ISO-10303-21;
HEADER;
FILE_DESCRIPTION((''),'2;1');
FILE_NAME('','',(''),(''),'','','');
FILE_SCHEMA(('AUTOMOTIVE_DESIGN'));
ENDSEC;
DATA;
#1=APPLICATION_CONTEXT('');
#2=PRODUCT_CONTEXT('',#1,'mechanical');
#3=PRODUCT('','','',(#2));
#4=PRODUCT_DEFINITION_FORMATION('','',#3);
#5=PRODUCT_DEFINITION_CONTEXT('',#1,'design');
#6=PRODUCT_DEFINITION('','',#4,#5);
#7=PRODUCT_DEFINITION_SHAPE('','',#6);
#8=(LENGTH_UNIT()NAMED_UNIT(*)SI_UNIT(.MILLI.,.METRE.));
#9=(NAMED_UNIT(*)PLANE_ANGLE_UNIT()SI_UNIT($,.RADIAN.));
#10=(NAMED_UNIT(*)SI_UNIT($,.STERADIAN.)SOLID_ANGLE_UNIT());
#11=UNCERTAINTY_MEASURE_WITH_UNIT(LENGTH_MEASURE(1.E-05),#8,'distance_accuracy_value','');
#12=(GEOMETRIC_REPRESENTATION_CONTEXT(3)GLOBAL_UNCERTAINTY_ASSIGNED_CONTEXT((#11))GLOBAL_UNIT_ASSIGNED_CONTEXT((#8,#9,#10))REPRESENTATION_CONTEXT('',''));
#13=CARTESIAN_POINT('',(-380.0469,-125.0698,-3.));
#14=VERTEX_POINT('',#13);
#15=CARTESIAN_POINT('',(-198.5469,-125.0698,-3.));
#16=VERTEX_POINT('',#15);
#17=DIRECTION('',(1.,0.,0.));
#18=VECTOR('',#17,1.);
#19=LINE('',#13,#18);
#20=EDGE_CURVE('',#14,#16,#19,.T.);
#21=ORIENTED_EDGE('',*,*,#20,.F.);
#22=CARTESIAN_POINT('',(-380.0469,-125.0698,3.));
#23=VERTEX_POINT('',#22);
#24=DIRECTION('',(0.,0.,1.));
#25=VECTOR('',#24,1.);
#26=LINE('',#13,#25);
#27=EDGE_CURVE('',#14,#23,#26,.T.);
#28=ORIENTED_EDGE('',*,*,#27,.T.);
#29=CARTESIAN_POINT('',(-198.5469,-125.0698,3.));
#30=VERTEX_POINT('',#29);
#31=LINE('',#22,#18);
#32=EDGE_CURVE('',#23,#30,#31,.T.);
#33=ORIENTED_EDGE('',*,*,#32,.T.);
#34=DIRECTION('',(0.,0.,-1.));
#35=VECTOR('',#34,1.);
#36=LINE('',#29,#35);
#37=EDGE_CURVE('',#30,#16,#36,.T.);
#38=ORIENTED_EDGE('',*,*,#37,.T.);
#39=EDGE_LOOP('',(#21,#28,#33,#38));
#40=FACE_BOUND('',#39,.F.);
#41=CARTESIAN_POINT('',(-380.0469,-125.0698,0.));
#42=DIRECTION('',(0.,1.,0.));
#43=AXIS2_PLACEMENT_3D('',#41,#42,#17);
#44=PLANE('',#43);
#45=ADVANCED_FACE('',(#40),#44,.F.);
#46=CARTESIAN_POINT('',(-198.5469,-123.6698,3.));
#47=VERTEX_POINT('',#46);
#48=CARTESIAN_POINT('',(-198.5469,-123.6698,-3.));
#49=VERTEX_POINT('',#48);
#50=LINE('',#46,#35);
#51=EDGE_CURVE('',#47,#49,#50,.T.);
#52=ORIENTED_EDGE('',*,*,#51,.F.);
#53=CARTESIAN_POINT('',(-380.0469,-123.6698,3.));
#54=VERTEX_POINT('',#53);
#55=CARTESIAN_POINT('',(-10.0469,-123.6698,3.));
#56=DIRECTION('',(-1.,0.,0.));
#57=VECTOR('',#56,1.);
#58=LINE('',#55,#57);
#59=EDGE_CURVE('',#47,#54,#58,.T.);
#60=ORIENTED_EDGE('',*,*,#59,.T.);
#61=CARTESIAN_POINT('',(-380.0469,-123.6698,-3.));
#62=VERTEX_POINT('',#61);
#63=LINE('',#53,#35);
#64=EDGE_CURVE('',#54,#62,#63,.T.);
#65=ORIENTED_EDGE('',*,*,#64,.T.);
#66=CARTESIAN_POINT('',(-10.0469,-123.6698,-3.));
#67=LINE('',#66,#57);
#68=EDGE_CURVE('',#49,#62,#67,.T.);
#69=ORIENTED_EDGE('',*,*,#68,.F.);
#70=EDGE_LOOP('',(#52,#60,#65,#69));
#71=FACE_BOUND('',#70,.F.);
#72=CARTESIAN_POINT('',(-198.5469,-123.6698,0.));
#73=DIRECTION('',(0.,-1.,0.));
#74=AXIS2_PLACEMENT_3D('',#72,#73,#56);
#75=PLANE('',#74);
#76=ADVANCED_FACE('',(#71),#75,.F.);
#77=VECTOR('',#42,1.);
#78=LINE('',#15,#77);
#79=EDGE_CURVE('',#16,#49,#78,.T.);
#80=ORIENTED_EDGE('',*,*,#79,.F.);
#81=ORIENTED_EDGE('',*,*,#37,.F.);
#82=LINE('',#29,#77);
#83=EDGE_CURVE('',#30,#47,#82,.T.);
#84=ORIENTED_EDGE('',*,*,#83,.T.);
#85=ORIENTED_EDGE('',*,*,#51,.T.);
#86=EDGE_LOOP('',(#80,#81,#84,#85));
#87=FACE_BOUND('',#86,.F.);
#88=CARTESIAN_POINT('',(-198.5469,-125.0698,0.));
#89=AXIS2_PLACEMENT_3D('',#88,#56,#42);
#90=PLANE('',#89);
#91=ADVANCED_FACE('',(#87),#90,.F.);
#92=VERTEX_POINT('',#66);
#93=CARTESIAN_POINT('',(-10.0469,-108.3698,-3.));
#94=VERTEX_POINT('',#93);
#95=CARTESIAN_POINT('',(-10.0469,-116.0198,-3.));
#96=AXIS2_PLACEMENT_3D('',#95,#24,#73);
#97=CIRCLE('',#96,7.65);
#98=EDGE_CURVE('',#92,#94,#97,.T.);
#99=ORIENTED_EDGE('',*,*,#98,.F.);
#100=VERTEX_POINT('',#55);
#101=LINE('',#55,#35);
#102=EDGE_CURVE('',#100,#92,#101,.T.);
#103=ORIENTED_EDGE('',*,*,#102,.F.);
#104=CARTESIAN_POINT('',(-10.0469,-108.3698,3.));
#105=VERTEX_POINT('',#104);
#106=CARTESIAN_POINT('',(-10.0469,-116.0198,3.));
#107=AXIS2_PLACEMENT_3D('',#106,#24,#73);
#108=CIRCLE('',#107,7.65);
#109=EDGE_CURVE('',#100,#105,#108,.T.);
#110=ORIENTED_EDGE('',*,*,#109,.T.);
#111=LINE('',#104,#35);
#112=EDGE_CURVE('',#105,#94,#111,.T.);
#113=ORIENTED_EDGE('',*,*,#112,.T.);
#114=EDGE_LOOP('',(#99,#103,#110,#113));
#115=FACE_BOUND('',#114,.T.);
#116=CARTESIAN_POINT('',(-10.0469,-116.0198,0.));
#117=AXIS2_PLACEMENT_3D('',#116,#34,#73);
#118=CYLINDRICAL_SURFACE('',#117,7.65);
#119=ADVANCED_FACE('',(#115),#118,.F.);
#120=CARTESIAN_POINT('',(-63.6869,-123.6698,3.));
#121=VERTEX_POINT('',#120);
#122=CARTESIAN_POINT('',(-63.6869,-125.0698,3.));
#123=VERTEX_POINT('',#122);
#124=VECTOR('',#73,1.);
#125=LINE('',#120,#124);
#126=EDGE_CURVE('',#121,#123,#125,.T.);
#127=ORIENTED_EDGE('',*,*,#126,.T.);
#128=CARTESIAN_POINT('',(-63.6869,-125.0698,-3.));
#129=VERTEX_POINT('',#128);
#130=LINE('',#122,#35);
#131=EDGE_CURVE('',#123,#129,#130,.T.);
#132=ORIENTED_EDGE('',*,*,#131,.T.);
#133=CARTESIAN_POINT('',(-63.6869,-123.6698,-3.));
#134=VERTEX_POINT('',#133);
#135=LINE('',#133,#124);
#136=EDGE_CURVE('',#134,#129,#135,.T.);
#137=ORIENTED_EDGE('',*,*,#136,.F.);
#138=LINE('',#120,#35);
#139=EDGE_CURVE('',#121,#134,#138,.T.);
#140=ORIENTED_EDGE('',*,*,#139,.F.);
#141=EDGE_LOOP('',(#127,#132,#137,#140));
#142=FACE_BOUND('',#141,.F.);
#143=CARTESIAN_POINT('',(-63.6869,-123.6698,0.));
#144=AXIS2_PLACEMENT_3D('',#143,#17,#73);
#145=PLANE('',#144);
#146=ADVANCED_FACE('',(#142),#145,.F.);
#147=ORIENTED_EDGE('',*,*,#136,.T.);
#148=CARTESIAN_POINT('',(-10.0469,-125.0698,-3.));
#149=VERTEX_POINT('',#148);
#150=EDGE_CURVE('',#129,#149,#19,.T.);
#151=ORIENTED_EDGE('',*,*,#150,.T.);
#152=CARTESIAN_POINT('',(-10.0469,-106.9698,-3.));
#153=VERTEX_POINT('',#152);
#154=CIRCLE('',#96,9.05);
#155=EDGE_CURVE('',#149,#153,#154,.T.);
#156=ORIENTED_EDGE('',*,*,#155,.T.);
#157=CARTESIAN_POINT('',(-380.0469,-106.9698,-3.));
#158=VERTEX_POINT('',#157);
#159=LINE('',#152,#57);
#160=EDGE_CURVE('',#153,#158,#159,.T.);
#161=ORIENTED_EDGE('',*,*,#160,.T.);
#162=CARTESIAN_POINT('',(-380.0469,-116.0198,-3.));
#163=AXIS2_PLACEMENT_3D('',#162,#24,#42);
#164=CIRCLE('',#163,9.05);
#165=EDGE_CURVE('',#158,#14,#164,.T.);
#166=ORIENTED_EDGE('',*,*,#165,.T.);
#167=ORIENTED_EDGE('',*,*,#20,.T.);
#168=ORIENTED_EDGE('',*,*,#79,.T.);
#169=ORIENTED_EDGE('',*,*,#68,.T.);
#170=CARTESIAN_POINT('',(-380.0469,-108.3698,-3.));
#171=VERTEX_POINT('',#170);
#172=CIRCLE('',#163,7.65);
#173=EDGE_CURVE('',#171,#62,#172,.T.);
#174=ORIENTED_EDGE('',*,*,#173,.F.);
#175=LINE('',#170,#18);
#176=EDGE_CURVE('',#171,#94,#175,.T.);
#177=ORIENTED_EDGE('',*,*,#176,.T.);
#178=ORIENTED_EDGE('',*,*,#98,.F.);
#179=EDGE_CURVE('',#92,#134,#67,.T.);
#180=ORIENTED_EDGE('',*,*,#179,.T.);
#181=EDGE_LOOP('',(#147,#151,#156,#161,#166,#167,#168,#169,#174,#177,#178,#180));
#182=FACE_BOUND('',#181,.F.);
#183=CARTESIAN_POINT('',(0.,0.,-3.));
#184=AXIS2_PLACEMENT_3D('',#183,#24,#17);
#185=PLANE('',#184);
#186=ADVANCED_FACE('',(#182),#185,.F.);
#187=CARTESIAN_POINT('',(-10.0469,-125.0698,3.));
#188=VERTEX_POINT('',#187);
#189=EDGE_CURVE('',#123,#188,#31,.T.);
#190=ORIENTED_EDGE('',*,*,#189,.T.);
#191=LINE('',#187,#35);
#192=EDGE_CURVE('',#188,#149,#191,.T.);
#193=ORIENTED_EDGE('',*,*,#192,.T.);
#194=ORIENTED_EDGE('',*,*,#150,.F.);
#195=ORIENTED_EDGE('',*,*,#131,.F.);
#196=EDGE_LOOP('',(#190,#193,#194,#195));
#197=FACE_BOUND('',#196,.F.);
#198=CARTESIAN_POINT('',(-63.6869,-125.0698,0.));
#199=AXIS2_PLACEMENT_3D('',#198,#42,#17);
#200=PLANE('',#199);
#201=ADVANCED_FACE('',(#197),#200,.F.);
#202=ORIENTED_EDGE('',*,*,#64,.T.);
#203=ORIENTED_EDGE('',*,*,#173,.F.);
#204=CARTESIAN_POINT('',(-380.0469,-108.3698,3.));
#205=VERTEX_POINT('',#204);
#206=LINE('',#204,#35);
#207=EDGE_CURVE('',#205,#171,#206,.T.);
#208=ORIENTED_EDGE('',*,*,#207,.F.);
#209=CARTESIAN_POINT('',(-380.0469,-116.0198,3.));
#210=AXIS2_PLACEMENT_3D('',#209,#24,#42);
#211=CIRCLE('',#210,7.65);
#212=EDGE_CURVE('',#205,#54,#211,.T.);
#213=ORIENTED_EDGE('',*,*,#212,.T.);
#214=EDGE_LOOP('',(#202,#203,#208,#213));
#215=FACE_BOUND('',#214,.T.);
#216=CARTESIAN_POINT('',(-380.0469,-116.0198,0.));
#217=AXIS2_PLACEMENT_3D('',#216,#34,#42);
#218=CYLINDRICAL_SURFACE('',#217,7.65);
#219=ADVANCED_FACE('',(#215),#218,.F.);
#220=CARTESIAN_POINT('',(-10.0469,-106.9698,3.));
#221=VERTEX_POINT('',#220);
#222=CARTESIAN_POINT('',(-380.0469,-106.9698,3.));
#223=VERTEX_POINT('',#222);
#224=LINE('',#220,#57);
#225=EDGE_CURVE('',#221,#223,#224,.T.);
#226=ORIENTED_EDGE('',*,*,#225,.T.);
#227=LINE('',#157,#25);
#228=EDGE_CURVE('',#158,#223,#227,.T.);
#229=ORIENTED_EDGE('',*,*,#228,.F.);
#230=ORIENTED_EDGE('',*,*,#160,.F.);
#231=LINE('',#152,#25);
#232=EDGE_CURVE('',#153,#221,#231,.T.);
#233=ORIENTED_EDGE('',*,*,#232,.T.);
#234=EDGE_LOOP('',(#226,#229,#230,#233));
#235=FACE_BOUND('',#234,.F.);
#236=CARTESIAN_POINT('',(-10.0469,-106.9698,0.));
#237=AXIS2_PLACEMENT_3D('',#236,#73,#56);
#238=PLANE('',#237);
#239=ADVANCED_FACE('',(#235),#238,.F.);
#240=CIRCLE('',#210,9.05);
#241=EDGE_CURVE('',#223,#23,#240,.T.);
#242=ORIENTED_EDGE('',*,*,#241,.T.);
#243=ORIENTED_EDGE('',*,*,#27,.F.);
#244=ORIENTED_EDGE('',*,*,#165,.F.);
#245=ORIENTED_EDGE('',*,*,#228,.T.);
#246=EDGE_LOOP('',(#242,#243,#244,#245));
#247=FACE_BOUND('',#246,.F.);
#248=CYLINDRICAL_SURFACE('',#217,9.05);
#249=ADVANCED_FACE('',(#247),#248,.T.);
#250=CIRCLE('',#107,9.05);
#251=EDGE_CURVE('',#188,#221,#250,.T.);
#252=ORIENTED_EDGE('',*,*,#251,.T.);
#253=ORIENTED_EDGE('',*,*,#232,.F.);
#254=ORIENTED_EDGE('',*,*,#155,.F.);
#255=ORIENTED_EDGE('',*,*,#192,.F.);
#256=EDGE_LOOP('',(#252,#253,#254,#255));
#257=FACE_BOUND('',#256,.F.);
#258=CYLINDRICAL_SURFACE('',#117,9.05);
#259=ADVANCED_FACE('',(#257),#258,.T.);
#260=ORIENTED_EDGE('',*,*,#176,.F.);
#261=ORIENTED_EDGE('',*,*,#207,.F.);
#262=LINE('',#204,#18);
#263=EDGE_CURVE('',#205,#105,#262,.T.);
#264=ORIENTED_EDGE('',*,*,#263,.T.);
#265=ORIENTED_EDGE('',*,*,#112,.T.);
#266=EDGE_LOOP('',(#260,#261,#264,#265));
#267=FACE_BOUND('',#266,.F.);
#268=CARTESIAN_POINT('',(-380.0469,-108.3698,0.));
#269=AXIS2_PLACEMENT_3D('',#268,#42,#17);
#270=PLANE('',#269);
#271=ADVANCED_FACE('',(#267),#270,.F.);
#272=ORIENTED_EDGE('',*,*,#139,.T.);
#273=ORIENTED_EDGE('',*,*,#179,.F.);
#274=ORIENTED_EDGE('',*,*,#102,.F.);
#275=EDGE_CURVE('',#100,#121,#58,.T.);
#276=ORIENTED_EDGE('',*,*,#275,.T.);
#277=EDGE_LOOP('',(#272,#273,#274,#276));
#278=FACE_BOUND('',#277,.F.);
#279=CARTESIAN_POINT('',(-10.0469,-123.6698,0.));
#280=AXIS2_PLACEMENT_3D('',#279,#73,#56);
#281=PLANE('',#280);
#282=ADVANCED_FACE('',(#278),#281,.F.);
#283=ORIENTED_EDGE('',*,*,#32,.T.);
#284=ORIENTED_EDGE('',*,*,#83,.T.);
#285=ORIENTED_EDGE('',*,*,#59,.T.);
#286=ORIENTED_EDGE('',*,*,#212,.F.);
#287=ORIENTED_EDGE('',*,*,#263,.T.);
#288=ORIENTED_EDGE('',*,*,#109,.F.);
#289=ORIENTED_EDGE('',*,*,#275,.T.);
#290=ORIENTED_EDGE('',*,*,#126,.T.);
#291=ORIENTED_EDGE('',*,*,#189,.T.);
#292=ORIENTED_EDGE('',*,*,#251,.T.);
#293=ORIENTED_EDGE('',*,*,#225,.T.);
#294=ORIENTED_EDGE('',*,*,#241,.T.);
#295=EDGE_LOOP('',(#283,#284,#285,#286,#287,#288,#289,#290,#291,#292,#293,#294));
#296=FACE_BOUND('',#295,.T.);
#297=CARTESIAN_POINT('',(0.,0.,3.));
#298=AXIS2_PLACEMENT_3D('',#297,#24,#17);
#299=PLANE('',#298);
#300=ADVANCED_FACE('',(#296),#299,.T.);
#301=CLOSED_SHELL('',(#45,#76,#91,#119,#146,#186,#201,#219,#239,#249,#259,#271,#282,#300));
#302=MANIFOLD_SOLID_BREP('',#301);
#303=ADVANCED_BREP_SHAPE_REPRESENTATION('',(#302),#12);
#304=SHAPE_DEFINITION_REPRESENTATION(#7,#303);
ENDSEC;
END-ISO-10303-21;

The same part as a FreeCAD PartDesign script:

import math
import FreeCAD as App
import Part
import Sketcher

V = App.Vector
Q = App.Units.Quantity

doc = App.newDocument("Part")
params = doc.addObject("Spreadsheet::Sheet", "Params")
for row, (alias, value) in enumerate([
    ("sketch1_width", "370 mm"),
    ("sketch1_radius", "9.05 mm"),
    ("sketch1_radius2", "7.65 mm"),
    ("sketch1_width2", "181.5 mm"),
    ("sketch1_width3", "53.64 mm"),
    ("pad1_length", "6 mm"),
], start=1):
    params.set(f"A{row}", alias)
    params.set(f"B{row}", "=" + value)
    params.setAlias(f"B{row}", alias)

body = doc.addObject("PartDesign::Body", "Body")

sketch1 = body.newObject("Sketcher::SketchObject", "Sketch")
sketch1.AttachmentSupport = (doc.getObject("XY_Plane"), [""])
sketch1.MapMode = "FlatFace"
sketch1.addGeometry(Part.ArcOfCircle(Part.Circle(V(-10, -116, 0), V(0, 0, 1), 9.1), math.radians(-90), math.radians(90)), False)
sketch1.addGeometry(Part.LineSegment(V(-10, -107, 0), V(-380, -107, 0)), False)
sketch1.addGeometry(Part.ArcOfCircle(Part.Circle(V(-380, -116, 0), V(0, 0, 1), 9.1), math.radians(90), math.radians(270)), False)
sketch1.addGeometry(Part.LineSegment(V(-380, -125.1, 0), V(-198.5, -125.1, 0)), False)
sketch1.addGeometry(Part.LineSegment(V(-198.5, -125.1, 0), V(-198.5, -123.7, 0)), False)
sketch1.addGeometry(Part.LineSegment(V(-198.5, -123.7, 0), V(-380, -123.7, 0)), False)
sketch1.addGeometry(Part.ArcOfCircle(Part.Circle(V(-380, -116, 0), V(0, 0, 1), 7.7), math.radians(90), math.radians(270)), False)
sketch1.addGeometry(Part.LineSegment(V(-380, -108.4, 0), V(-10, -108.4, 0)), False)
sketch1.addGeometry(Part.ArcOfCircle(Part.Circle(V(-10, -116, 0), V(0, 0, 1), 7.7), math.radians(-90), math.radians(90)), False)
sketch1.addGeometry(Part.LineSegment(V(-10, -123.7, 0), V(-63.7, -123.7, 0)), False)
sketch1.addGeometry(Part.LineSegment(V(-63.7, -123.7, 0), V(-63.7, -125.1, 0)), False)
sketch1.addGeometry(Part.LineSegment(V(-63.7, -125.1, 0), V(-10, -125.1, 0)), False)
sketch1.addConstraint(Sketcher.Constraint("Tangent", 0, 2, 1, 1))
sketch1.addConstraint(Sketcher.Constraint("Tangent", 1, 2, 2, 1))
sketch1.addConstraint(Sketcher.Constraint("Tangent", 2, 2, 3, 1))
sketch1.addConstraint(Sketcher.Constraint("Coincident", 3, 2, 4, 1))
sketch1.addConstraint(Sketcher.Constraint("Coincident", 4, 2, 5, 1))
sketch1.addConstraint(Sketcher.Constraint("Tangent", 5, 2, 6, 2))
sketch1.addConstraint(Sketcher.Constraint("Tangent", 6, 1, 7, 1))
sketch1.addConstraint(Sketcher.Constraint("Tangent", 7, 2, 8, 2))
sketch1.addConstraint(Sketcher.Constraint("Tangent", 8, 1, 9, 1))
sketch1.addConstraint(Sketcher.Constraint("Coincident", 9, 2, 10, 1))
sketch1.addConstraint(Sketcher.Constraint("Coincident", 10, 2, 11, 1))
sketch1.addConstraint(Sketcher.Constraint("Tangent", 11, 2, 0, 1))
sketch1.addConstraint(Sketcher.Constraint("Horizontal", 1))
sketch1.addConstraint(Sketcher.Constraint("Horizontal", 3))
sketch1.addConstraint(Sketcher.Constraint("Vertical", 4))
sketch1.addConstraint(Sketcher.Constraint("Horizontal", 5))
sketch1.addConstraint(Sketcher.Constraint("Horizontal", 7))
sketch1.addConstraint(Sketcher.Constraint("Horizontal", 9))
sketch1.addConstraint(Sketcher.Constraint("Vertical", 10))
sketch1.addConstraint(Sketcher.Constraint("Horizontal", 11))
sketch1.addConstraint(Sketcher.Constraint("Coincident", 6, 3, 2, 3))
sketch1.addConstraint(Sketcher.Constraint("Coincident", 8, 3, 0, 3))
sketch1.addConstraint(Sketcher.Constraint("Equal", 0, 2))
sketch1.addConstraint(Sketcher.Constraint("DistanceX", 1, 2, 1, 1, Q("370 mm")))
sketch1.addConstraint(Sketcher.Constraint("Radius", 0, Q("9.05 mm")))
sketch1.addConstraint(Sketcher.Constraint("Radius", 6, Q("7.65 mm")))
sketch1.addConstraint(Sketcher.Constraint("DistanceX", 3, 1, 3, 2, Q("181.5 mm")))
sketch1.addConstraint(Sketcher.Constraint("DistanceX", 9, 2, 9, 1, Q("53.64 mm")))
sketch1.addConstraint(Sketcher.Constraint("DistanceX", 0, 3, -1, 1, Q("10.047 mm")))
sketch1.addConstraint(Sketcher.Constraint("DistanceY", 0, 3, -1, 1, Q("116.0198 mm")))
sketch1.setExpression("Constraints[23]", "Params.sketch1_width")
sketch1.setExpression("Constraints[24]", "Params.sketch1_radius")
sketch1.setExpression("Constraints[25]", "Params.sketch1_radius2")
sketch1.setExpression("Constraints[26]", "Params.sketch1_width2")
sketch1.setExpression("Constraints[27]", "Params.sketch1_width3")
pad1 = body.newObject("PartDesign::Pad", "Pad")
pad1.Profile = sketch1
pad1.setExpression("Length", "Params.pad1_length")
pad1.Midplane = True

doc.recompute()
